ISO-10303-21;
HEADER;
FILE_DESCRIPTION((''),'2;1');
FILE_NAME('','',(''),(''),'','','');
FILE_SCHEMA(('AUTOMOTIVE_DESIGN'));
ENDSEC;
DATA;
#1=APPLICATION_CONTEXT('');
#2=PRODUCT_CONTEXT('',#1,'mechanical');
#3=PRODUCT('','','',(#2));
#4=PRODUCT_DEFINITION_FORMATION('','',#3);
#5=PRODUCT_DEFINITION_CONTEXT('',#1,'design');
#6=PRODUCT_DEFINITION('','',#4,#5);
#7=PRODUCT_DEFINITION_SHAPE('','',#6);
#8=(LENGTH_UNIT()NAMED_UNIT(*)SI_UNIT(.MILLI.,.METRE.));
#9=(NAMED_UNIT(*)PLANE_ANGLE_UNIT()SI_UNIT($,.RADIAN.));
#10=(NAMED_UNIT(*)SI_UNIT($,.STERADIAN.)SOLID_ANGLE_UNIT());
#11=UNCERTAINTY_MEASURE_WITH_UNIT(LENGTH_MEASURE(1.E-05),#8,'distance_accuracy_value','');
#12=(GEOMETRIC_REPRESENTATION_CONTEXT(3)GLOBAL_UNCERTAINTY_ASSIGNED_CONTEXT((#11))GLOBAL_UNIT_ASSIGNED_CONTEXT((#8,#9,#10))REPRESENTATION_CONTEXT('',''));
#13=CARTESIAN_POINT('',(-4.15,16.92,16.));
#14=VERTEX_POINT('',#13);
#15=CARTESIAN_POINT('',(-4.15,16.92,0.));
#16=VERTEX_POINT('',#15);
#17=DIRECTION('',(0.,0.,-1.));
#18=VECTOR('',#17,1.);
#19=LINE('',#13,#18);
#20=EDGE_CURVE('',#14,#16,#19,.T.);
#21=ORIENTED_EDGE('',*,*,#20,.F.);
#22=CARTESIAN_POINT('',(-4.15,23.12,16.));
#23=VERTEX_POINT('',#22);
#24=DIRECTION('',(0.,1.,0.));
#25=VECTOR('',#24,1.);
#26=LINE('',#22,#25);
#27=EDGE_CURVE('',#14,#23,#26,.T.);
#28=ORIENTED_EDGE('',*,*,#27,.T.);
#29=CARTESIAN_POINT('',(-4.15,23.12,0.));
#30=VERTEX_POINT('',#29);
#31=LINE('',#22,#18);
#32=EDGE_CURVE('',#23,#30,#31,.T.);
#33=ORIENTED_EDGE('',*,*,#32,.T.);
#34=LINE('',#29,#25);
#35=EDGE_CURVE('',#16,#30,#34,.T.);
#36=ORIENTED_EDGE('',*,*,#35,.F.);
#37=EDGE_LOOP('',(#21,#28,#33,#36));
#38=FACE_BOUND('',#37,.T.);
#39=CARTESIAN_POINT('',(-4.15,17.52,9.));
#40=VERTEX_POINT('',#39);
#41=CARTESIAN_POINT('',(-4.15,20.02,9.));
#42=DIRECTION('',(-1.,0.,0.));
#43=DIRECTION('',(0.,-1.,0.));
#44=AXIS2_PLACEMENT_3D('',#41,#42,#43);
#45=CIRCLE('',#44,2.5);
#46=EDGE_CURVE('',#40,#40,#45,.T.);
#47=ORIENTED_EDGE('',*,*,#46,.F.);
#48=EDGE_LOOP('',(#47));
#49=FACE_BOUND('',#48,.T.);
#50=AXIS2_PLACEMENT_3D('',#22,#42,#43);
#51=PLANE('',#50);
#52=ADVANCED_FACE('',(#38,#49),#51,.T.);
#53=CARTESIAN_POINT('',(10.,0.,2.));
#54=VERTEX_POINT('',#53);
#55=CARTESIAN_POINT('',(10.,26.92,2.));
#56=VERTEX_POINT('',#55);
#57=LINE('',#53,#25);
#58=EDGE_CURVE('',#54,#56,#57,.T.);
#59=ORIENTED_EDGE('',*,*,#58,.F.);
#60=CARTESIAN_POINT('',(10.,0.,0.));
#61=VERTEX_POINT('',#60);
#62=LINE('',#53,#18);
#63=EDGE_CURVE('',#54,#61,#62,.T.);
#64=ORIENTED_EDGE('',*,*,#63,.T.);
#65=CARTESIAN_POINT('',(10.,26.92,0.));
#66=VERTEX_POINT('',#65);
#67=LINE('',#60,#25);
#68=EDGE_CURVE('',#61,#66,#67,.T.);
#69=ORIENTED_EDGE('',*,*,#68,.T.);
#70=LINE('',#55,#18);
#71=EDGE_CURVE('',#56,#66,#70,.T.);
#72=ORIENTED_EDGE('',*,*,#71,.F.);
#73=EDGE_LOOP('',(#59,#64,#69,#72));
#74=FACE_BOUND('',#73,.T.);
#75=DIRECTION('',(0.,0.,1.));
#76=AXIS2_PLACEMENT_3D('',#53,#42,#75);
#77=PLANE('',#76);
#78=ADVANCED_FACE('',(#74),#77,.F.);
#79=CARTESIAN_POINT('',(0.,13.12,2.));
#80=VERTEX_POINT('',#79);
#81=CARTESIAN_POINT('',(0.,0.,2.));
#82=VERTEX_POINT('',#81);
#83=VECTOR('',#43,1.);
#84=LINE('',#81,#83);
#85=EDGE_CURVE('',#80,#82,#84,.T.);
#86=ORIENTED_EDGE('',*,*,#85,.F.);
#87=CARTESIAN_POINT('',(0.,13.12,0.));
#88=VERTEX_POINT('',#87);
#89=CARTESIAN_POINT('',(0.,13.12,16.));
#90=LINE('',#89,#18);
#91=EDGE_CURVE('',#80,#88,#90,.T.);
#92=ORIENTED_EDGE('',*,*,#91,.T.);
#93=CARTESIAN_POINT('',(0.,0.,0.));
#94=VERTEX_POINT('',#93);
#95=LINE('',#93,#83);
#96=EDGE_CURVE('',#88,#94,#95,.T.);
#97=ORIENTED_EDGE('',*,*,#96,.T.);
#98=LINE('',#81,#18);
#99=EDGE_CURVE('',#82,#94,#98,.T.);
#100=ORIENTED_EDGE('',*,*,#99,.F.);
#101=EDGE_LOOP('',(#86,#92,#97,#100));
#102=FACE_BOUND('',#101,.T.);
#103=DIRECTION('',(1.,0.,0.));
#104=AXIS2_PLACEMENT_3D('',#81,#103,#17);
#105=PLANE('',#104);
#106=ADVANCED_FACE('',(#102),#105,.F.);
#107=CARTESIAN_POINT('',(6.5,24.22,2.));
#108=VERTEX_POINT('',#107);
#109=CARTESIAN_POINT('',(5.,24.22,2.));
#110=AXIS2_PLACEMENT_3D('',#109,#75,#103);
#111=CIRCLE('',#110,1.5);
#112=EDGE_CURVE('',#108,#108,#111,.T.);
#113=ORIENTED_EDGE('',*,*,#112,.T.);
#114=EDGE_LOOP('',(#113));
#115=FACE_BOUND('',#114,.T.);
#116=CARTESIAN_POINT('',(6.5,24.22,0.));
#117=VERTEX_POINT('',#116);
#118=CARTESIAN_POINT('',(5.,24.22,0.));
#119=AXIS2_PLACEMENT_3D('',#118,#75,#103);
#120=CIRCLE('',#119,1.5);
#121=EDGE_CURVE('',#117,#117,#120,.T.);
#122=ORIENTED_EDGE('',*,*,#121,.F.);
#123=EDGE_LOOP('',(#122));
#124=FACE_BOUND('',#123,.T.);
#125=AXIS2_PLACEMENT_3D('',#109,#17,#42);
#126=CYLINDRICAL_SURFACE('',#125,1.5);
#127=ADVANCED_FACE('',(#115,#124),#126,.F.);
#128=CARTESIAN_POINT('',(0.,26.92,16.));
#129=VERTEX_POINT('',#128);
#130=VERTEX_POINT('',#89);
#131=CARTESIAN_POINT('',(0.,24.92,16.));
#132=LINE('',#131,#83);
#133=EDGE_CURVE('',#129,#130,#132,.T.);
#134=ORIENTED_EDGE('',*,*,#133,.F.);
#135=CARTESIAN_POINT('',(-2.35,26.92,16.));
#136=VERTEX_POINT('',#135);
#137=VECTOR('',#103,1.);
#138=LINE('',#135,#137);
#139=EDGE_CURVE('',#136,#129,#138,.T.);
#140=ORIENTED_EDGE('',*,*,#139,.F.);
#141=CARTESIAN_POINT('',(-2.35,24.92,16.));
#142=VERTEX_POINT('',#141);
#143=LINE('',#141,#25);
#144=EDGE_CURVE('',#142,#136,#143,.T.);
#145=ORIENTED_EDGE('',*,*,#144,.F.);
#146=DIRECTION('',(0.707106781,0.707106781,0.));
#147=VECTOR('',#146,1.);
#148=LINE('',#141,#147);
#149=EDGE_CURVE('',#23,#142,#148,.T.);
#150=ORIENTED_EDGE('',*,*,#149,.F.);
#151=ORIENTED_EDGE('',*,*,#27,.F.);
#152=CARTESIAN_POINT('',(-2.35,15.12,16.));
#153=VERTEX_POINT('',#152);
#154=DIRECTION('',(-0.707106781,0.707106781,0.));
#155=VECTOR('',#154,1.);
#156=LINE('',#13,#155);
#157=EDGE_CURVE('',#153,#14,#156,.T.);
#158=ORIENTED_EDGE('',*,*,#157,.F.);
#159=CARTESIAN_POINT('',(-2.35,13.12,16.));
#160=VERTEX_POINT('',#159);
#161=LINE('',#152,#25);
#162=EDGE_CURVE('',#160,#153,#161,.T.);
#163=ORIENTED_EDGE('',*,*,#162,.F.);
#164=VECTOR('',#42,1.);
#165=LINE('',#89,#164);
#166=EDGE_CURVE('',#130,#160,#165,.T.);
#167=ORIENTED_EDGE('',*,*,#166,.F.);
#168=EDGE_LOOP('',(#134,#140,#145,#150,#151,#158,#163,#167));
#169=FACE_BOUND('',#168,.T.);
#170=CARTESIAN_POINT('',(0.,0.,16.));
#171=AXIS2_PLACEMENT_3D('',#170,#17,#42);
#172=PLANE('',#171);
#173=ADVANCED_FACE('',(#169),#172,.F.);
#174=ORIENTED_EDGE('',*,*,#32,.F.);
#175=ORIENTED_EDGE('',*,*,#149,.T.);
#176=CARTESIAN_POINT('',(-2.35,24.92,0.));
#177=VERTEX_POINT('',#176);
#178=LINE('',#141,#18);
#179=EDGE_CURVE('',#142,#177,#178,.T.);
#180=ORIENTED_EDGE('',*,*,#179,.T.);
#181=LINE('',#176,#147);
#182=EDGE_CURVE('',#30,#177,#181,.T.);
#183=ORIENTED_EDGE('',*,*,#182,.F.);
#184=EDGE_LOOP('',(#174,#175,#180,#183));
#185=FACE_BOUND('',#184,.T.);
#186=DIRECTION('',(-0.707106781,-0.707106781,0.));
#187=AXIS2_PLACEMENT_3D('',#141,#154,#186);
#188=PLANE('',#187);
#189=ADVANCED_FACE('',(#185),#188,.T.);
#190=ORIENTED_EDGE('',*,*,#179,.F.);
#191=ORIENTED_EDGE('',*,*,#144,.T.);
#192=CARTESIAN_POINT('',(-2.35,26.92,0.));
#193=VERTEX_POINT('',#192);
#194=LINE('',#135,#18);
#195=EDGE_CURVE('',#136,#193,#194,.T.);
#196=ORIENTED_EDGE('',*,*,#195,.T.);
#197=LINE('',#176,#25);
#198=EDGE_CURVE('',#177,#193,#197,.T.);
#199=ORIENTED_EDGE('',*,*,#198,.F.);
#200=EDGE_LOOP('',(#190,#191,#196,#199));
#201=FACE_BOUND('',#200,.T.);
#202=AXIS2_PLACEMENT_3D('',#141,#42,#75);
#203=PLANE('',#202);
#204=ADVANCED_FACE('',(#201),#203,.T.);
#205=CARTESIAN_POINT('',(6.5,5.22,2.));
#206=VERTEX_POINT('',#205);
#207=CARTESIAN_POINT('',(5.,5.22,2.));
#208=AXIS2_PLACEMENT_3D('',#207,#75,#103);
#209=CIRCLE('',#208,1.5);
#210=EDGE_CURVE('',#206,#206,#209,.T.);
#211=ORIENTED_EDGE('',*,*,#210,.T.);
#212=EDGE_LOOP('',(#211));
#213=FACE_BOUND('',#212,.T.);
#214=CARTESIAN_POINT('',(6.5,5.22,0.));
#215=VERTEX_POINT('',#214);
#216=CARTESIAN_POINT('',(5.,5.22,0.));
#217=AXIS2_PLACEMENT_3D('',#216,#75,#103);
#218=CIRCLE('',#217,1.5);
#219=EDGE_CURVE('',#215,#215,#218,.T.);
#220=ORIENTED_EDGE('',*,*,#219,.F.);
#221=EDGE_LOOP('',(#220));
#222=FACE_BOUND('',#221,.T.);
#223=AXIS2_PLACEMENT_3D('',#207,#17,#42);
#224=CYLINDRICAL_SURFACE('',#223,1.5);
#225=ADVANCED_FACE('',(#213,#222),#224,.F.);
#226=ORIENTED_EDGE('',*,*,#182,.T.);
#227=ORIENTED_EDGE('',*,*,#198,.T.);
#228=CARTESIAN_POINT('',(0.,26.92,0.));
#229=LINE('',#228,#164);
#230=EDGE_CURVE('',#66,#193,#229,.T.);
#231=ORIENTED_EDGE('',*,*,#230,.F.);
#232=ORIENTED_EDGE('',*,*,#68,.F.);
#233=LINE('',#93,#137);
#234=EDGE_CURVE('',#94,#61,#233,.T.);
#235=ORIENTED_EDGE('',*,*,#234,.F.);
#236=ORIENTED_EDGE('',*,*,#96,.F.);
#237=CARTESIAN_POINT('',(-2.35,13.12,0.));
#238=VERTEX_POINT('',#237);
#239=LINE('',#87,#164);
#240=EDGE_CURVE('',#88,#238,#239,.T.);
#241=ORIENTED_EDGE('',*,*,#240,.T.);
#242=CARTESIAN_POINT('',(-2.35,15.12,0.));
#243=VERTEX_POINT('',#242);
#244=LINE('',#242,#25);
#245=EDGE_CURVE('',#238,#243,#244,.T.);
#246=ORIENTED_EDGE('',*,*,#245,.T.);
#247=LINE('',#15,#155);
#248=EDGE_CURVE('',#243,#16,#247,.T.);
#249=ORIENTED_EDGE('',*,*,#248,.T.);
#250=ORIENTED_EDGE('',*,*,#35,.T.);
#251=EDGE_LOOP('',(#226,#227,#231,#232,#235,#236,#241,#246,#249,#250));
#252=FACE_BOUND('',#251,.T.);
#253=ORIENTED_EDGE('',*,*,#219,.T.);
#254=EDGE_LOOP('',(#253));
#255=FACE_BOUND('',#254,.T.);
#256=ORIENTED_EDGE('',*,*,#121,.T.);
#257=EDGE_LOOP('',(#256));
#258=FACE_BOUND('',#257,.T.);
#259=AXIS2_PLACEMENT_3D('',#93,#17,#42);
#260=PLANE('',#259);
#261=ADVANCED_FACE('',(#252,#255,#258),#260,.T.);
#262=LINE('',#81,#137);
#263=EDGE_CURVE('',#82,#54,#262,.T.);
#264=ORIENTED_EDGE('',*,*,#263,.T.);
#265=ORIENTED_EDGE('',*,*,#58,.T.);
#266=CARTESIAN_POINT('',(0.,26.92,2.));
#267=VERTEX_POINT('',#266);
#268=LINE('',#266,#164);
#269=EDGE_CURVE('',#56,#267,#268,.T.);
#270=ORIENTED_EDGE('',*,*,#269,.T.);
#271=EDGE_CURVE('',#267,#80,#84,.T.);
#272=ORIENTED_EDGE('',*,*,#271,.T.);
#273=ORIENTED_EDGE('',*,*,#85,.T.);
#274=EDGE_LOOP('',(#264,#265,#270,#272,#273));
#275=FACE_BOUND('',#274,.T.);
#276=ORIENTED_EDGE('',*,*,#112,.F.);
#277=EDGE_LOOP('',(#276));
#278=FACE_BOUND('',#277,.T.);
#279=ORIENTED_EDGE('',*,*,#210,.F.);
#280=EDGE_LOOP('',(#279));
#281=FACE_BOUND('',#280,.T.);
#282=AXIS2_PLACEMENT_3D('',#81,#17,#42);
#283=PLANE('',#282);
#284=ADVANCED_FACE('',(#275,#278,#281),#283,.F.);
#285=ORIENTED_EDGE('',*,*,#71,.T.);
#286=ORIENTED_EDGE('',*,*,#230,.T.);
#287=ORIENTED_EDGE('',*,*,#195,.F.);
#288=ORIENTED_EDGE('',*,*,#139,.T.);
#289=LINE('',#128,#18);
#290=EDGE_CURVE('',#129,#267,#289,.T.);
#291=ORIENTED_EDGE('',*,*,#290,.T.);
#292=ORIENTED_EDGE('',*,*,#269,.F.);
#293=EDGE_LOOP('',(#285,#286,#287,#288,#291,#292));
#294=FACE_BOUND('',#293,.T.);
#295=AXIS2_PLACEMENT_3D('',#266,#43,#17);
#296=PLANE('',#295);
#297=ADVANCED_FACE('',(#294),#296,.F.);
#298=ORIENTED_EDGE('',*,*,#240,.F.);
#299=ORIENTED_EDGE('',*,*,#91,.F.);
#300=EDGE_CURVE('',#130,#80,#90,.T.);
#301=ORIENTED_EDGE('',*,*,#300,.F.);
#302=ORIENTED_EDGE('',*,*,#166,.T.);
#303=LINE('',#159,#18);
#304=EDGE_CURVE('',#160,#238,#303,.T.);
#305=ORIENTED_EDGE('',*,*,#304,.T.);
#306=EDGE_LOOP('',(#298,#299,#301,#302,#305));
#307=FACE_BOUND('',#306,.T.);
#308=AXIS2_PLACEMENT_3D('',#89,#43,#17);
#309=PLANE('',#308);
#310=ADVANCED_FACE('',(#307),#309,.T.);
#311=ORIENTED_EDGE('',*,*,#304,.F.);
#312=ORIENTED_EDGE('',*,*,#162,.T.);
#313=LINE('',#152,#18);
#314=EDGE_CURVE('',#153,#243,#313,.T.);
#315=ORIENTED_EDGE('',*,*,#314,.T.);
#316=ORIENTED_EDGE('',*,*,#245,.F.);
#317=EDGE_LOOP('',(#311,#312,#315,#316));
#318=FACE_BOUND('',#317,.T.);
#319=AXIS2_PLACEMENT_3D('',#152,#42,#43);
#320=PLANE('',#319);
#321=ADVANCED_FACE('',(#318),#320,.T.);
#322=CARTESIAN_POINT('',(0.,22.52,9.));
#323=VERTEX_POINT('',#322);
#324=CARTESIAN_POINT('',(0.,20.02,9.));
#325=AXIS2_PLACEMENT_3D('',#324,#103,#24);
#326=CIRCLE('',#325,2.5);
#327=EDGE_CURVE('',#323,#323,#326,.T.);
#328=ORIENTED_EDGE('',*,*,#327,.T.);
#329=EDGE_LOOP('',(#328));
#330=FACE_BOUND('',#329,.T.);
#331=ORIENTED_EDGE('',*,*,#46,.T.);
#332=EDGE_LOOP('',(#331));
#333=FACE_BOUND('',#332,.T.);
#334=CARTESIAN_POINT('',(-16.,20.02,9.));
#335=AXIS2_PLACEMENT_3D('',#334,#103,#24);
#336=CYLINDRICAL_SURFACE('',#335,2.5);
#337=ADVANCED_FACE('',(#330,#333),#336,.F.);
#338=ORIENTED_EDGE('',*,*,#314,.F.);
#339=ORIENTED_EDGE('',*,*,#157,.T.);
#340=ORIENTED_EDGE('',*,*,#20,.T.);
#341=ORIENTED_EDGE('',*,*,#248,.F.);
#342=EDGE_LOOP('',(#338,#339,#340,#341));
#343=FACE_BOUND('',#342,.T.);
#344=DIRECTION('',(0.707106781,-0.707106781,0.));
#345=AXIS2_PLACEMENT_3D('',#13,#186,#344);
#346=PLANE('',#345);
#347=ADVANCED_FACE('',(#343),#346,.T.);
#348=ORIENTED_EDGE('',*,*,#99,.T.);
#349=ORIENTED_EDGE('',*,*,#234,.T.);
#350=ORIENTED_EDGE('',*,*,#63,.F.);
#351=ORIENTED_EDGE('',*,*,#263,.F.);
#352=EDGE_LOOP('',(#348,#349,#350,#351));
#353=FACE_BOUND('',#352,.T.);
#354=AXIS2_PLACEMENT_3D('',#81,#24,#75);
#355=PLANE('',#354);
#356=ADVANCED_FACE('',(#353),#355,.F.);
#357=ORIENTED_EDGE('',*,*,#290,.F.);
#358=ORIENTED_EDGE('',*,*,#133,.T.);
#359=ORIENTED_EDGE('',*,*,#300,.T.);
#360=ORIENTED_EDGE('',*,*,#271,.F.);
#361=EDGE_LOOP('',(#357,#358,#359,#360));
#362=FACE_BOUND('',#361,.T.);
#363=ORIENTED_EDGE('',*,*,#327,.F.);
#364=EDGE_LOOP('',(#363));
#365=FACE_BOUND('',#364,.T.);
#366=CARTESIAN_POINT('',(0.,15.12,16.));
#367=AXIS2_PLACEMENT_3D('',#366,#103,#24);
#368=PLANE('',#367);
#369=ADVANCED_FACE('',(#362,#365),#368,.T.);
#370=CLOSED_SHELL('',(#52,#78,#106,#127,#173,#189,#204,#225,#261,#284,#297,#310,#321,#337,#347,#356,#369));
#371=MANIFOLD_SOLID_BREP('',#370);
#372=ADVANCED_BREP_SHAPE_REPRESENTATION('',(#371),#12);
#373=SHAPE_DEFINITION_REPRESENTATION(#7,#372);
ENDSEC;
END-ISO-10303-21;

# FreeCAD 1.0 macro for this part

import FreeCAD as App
import Part
import Sketcher

V = App.Vector

doc = App.newDocument("Part")
body = doc.addObject("PartDesign::Body", "Body")

# Sketch on XY plane
sketch1 = doc.addObject("Sketcher::SketchObject", "Sketch")
body.addObject(sketch1)
sketch1.AttachmentSupport = (doc.XY_Plane, [""])
sketch1.MapMode = "FlatFace"
sketch1.addGeometry([
    Part.LineSegment(V(0, 26.9, 0), V(0, 0, 0)),  # 0
    Part.LineSegment(V(0, 0, 0), V(10, 0, 0)),  # 1
    Part.LineSegment(V(10, 0, 0), V(10, 26.9, 0)),  # 2
    Part.LineSegment(V(10, 26.9, 0), V(0, 26.9, 0)),  # 3
    Part.Circle(V(5, 5.2, 0), V(0, 0, 1), 1.5),  # 4
    Part.Circle(V(5, 24.2, 0), V(0, 0, 1), 1.5),  # 5
], False)
sketch1.addConstraint([
    Sketcher.Constraint("Coincident", 0, 2, 1, 1),
    Sketcher.Constraint("Coincident", 1, 2, 2, 1),
    Sketcher.Constraint("Coincident", 2, 2, 3, 1),
    Sketcher.Constraint("Coincident", 3, 2, 0, 1),
    Sketcher.Constraint("Vertical", 0),
    Sketcher.Constraint("Horizontal", 1),
    Sketcher.Constraint("Vertical", 2),
    Sketcher.Constraint("Horizontal", 3),
    Sketcher.Constraint("Coincident", 0, 2, -1, 1),
    Sketcher.Constraint("Equal", 4, 5),
    Sketcher.Constraint("Vertical", 4, 3, 5, 3),
    Sketcher.Constraint("Diameter", 4, 3.0),
    Sketcher.Constraint("DistanceX", 1, 1, 1, 2, 10.0),
    Sketcher.Constraint("DistanceX", -1, 1, 4, 3, 5.0),
    Sketcher.Constraint("DistanceY", 4, 3, 5, 3, 19.0),
    Sketcher.Constraint("DistanceY", 0, 2, 0, 1, 26.92),
    Sketcher.Constraint("DistanceY", 5, 3, 2, 2, 2.7),
])
pad1 = doc.addObject("PartDesign::Pad", "Pad")
body.addObject(pad1)
pad1.Profile = sketch1
pad1.Length = 2

# Sketch on XY plane
sketch2 = doc.addObject("Sketcher::SketchObject", "Sketch001")
body.addObject(sketch2)
sketch2.AttachmentSupport = (doc.XY_Plane, [""])
sketch2.MapMode = "FlatFace"
sketch2.addGeometry([
    Part.LineSegment(V(-4.2, 23.1, 0), V(-2.4, 24.9, 0)),  # 0
    Part.LineSegment(V(-2.4, 24.9, 0), V(-2.4, 26.9, 0)),  # 1
    Part.LineSegment(V(-2.4, 26.9, 0), V(0, 26.9, 0)),  # 2
    Part.LineSegment(V(0, 26.9, 0), V(0, 13.1, 0)),  # 3
    Part.LineSegment(V(0, 13.1, 0), V(-2.4, 13.1, 0)),  # 4
    Part.LineSegment(V(-2.4, 13.1, 0), V(-2.4, 15.1, 0)),  # 5
    Part.LineSegment(V(-2.4, 15.1, 0), V(-4.2, 16.9, 0)),  # 6
    Part.LineSegment(V(-4.2, 16.9, 0), V(-4.2, 23.1, 0)),  # 7
], False)
sketch2.addConstraint([
    Sketcher.Constraint("Coincident", 0, 2, 1, 1),
    Sketcher.Constraint("Coincident", 1, 2, 2, 1),
    Sketcher.Constraint("Coincident", 2, 2, 3, 1),
    Sketcher.Constraint("Coincident", 3, 2, 4, 1),
    Sketcher.Constraint("Coincident", 4, 2, 5, 1),
    Sketcher.Constraint("Coincident", 5, 2, 6, 1),
    Sketcher.Constraint("Coincident", 6, 2, 7, 1),
    Sketcher.Constraint("Coincident", 7, 2, 0, 1),
    Sketcher.Constraint("Vertical", 1),
    Sketcher.Constraint("Horizontal", 2),
    Sketcher.Constraint("Vertical", 3),
    Sketcher.Constraint("Horizontal", 4),
    Sketcher.Constraint("Vertical", 5),
    Sketcher.Constraint("Vertical", 7),
    Sketcher.Constraint("PointOnObject", 2, 2, -2),
    Sketcher.Constraint("Perpendicular", 0, 6),
    Sketcher.Constraint("Vertical", 1, 2, 4, 2),
    Sketcher.Constraint("Equal", 1, 5),
    Sketcher.Constraint("Equal", 0, 6),
    Sketcher.Constraint("DistanceY", 1, 1, 1, 2, 2.0),
    Sketcher.Constraint("DistanceY", 3, 2, 3, 1, 13.8),
    Sketcher.Constraint("DistanceY", 7, 1, 7, 2, 6.2),
    Sketcher.Constraint("DistanceX", 2, 1, 2, 2, 2.35),
    Sketcher.Constraint("DistanceY", -1, 1, 0, 2, 24.92),
])
pad2 = doc.addObject("PartDesign::Pad", "Pad001")
body.addObject(pad2)
pad2.Profile = sketch2
pad2.Length = 16

# Sketch on YZ plane
sketch3 = doc.addObject("Sketcher::SketchObject", "Sketch002")
body.addObject(sketch3)
sketch3.AttachmentSupport = (doc.YZ_Plane, [""])
sketch3.MapMode = "FlatFace"
sketch3.addGeometry(Part.Circle(V(20, 9, 0), V(0, 0, 1), 2.5), False)
sketch3.addConstraint([
    Sketcher.Constraint("Diameter", 0, 5.0),
    Sketcher.Constraint("DistanceY", -1, 1, 0, 3, 9.0),
    Sketcher.Constraint("DistanceX", -1, 1, 0, 3, 20.02),
])
pocket1 = doc.addObject("PartDesign::Pocket", "Pocket")
body.addObject(pocket1)
pocket1.Profile = sketch3
pocket1.Length = 16

doc.recompute()
